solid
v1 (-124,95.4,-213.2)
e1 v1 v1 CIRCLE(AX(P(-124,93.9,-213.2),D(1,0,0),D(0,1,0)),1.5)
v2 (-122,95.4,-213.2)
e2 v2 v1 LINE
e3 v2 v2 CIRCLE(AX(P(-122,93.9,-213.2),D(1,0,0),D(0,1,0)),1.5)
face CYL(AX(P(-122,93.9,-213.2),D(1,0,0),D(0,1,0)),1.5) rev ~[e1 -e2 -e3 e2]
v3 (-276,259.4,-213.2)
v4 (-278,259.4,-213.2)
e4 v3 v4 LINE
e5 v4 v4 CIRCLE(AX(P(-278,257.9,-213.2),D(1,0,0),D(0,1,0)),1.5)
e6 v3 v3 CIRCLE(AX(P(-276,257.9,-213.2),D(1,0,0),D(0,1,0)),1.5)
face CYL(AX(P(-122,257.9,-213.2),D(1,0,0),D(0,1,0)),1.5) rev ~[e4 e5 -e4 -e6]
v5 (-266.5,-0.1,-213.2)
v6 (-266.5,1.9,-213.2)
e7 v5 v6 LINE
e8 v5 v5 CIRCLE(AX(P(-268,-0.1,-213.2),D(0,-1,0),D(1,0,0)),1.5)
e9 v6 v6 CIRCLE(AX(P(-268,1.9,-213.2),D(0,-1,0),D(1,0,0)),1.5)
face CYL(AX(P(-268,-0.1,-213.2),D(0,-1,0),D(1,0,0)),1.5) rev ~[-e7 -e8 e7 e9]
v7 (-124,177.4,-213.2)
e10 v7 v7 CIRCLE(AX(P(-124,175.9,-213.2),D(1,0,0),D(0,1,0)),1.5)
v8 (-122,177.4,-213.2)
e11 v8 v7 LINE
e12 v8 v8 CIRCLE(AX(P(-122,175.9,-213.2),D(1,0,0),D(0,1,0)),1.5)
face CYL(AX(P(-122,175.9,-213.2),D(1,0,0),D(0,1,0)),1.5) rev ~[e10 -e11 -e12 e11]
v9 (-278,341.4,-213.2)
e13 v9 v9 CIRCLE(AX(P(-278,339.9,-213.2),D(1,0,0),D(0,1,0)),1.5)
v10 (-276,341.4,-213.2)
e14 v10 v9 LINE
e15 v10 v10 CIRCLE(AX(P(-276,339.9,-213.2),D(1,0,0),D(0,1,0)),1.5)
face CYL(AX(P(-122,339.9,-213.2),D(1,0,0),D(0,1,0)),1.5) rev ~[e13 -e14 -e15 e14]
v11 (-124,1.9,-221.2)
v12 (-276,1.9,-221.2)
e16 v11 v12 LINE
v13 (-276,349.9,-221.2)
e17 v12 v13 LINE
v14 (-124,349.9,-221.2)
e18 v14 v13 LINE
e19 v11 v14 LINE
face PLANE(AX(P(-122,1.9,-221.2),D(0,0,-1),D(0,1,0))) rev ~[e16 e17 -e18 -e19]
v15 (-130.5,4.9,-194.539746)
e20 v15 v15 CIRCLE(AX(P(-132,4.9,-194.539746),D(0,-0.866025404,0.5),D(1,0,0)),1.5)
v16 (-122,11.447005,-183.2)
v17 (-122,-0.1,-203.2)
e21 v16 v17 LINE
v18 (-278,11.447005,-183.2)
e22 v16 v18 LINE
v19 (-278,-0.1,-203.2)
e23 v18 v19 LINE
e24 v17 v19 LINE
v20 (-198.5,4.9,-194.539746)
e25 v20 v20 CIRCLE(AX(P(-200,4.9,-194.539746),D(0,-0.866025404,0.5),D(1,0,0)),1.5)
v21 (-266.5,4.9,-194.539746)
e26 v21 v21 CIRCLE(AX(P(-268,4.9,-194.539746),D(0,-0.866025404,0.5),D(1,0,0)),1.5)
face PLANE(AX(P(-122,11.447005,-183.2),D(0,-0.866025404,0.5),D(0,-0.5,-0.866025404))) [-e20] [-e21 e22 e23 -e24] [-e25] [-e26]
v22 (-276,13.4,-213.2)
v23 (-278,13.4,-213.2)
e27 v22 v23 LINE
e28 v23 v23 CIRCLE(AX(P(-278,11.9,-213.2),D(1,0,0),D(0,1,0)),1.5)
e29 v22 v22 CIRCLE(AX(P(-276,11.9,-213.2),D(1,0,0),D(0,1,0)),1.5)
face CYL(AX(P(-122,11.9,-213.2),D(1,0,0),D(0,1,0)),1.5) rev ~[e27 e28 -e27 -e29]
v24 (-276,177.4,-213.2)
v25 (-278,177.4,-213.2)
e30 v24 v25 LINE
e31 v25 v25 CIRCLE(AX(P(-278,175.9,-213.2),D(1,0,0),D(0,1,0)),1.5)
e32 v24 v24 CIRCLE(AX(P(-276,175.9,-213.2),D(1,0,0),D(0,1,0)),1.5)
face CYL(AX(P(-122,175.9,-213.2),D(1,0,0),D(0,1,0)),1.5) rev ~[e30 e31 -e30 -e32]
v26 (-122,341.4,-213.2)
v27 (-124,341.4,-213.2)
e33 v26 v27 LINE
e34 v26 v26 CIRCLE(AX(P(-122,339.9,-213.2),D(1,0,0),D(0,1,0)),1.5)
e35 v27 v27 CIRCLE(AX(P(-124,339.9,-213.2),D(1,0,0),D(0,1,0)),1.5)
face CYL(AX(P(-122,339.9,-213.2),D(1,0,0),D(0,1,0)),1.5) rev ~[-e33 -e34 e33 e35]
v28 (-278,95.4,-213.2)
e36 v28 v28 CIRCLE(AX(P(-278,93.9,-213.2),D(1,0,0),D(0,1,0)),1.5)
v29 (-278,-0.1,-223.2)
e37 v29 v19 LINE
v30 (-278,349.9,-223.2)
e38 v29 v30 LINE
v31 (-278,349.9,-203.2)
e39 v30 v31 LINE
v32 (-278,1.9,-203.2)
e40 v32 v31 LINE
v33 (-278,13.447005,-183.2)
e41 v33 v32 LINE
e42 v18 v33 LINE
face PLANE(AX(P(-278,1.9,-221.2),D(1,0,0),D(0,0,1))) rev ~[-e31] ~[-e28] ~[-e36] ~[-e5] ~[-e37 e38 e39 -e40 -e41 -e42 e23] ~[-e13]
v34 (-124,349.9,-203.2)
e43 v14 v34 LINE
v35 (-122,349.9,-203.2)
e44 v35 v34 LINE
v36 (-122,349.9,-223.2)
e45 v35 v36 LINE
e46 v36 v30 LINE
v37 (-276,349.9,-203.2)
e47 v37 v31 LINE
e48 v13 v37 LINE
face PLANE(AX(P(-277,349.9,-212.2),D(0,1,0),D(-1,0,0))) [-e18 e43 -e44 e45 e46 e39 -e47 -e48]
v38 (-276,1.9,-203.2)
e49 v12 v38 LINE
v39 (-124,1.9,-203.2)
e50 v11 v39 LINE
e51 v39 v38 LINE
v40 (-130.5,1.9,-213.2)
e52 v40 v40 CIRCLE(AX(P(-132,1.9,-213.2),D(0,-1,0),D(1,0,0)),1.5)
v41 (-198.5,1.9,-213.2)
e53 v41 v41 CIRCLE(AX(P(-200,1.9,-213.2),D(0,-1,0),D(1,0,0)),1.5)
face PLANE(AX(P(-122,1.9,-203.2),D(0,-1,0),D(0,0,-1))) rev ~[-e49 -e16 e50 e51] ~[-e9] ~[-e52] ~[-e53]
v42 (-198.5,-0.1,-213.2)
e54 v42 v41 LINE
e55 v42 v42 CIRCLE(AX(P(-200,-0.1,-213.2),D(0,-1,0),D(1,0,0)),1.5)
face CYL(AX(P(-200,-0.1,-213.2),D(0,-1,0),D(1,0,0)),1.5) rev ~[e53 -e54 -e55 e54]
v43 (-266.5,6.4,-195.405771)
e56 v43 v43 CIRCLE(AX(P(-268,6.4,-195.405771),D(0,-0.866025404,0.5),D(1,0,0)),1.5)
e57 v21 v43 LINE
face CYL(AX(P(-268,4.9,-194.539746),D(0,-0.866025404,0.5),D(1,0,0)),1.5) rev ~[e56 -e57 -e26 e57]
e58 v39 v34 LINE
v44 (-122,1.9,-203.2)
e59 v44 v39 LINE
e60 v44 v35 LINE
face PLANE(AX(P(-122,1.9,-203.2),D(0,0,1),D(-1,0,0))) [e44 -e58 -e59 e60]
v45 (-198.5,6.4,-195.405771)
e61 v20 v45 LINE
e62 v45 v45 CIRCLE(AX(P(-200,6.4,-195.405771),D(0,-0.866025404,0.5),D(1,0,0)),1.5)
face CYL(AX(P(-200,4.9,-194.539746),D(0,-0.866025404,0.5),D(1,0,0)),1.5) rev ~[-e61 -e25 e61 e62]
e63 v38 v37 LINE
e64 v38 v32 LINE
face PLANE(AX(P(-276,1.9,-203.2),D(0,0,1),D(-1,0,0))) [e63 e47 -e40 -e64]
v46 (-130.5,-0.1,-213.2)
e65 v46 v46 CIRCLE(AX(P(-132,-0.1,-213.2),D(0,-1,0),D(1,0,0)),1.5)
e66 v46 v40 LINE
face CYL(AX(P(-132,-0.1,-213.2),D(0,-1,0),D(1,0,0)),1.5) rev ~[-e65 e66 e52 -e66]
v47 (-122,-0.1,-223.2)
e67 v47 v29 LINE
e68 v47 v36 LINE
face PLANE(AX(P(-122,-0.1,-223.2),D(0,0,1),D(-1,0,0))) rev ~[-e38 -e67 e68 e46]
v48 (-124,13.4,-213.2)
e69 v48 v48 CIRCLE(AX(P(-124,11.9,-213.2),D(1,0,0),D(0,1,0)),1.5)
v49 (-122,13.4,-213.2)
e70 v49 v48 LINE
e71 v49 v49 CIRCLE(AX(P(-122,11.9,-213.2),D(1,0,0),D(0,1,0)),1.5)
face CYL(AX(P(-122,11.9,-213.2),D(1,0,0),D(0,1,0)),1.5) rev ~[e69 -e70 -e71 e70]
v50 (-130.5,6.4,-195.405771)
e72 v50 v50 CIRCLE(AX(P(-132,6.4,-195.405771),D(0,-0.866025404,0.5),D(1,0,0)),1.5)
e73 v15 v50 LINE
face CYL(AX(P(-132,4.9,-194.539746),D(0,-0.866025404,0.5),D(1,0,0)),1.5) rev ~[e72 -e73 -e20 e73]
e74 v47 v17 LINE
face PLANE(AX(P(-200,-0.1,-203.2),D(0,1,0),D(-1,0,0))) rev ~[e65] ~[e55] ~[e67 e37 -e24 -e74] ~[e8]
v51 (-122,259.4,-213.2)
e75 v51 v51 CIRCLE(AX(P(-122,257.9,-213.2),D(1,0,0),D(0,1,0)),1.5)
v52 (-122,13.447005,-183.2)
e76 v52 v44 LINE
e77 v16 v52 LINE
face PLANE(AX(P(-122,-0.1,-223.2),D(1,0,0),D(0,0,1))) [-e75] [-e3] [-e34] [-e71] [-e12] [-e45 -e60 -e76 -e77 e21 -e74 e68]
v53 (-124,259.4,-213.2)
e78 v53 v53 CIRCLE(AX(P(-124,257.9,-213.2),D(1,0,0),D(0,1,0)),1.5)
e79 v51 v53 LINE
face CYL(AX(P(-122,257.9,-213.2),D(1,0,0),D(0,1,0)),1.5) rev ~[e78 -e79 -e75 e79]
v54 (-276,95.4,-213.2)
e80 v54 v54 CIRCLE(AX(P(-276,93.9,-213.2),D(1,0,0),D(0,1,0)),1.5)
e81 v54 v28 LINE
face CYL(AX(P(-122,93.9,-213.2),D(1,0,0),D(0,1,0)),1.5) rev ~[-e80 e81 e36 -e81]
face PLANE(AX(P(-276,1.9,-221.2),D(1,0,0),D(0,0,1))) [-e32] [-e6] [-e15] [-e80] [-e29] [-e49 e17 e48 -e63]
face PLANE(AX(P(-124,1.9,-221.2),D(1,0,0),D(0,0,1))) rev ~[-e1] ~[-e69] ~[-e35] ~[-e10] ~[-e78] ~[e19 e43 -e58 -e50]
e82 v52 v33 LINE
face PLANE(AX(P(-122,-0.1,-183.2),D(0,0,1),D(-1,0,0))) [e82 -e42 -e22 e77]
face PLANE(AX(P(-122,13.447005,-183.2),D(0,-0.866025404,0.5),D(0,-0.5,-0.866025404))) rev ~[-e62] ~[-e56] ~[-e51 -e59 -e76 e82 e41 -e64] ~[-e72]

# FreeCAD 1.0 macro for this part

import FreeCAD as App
import Part
import Sketcher
from FreeCAD import Vector
Q = App.Units.Quantity

doc = App.newDocument("Part")
body = doc.addObject("PartDesign::Body", "Body")

sketch1 = doc.addObject("Sketcher::SketchObject", "Sketch")
body.addObject(sketch1)
sketch1.AttachmentSupport = (doc.XZ_Plane, [""])
sketch1.MapMode = "FlatFace"
sketch1.AttachmentOffset = App.Placement(Vector(0, 0, 0.1), App.Rotation())
sketch1.addGeometry([
    Part.LineSegment(Vector(-122, -183, 0), Vector(-122, -223, 0)),
    Part.LineSegment(Vector(-122, -223, 0), Vector(-278, -223, 0)),
    Part.LineSegment(Vector(-278, -223, 0), Vector(-278, -183, 0)),
    Part.LineSegment(Vector(-278, -183, 0), Vector(-122, -183, 0)),
], False)
sketch1.addConstraint([
    Sketcher.Constraint("Coincident", 0, 2, 1, 1),
    Sketcher.Constraint("Coincident", 1, 2, 2, 1),
    Sketcher.Constraint("Coincident", 2, 2, 3, 1),
    Sketcher.Constraint("Coincident", 3, 2, 0, 1),
    Sketcher.Constraint("Vertical", 0),
    Sketcher.Constraint("Horizontal", 1),
    Sketcher.Constraint("Vertical", 2),
    Sketcher.Constraint("Horizontal", 3),
    Sketcher.Constraint("DistanceX", 1, 2, 1, 1, Q("156 mm")),
    Sketcher.Constraint("DistanceY", 0, 2, 0, 1, Q("40 mm")),
    Sketcher.Constraint("DistanceX", 0, 2, -1, 1, Q("122 mm")),
    Sketcher.Constraint("DistanceY", 0, 2, -1, 1, Q("223.2 mm")),
])
pad1 = doc.addObject("PartDesign::Pad", "Pad")
body.addObject(pad1)
pad1.Profile = sketch1
pad1.Length = 350
pad1.Reversed = True

sketch2 = doc.addObject("Sketcher::SketchObject", "Sketch001")
body.addObject(sketch2)
sketch2.AttachmentSupport = (doc.YZ_Plane, [""])
sketch2.MapMode = "FlatFace"
sketch2.AttachmentOffset = App.Placement(Vector(0, 0, -122), App.Rotation())
sketch2.addGeometry([
    Part.LineSegment(Vector(2, -203, 0), Vector(13, -183, 0)),
    Part.LineSegment(Vector(13, -183, 0), Vector(350, -183, 0)),
    Part.LineSegment(Vector(350, -183, 0), Vector(350, -221, 0)),
    Part.LineSegment(Vector(350, -221, 0), Vector(2, -221, 0)),
    Part.LineSegment(Vector(2, -221, 0), Vector(2, -203, 0)),
    Part.LineSegment(Vector(0, -183, 0), Vector(11, -183, 0)),
    Part.LineSegment(Vector(11, -183, 0), Vector(0, -203, 0)),
    Part.LineSegment(Vector(0, -203, 0), Vector(0, -183, 0)),
], False)
sketch2.addConstraint([
    Sketcher.Constraint("Coincident", 0, 2, 1, 1),
    Sketcher.Constraint("Coincident", 1, 2, 2, 1),
    Sketcher.Constraint("Coincident", 2, 2, 3, 1),
    Sketcher.Constraint("Coincident", 3, 2, 4, 1),
    Sketcher.Constraint("Coincident", 4, 2, 0, 1),
    Sketcher.Constraint("Coincident", 5, 2, 6, 1),
    Sketcher.Constraint("Coincident", 6, 2, 7, 1),
    Sketcher.Constraint("Coincident", 7, 2, 5, 1),
    Sketcher.Constraint("Horizontal", 1),
    Sketcher.Constraint("Vertical", 2),
    Sketcher.Constraint("Horizontal", 3),
    Sketcher.Constraint("Vertical", 4),
    Sketcher.Constraint("Horizontal", 5),
    Sketcher.Constraint("Vertical", 7),
    Sketcher.Constraint("Parallel", 0, 6),
    Sketcher.Constraint("Horizontal", 1, 2, 5, 2),
    Sketcher.Constraint("Horizontal", 4, 2, 6, 2),
    Sketcher.Constraint("DistanceX", 3, 2, 3, 1, Q("348 mm")),
    Sketcher.Constraint("DistanceY", 2, 2, 2, 1, Q("38 mm")),
    Sketcher.Constraint("DistanceY", 4, 1, 4, 2, Q("18 mm")),
    Sketcher.Constraint("Angle", 0, Q("60 deg")),
    Sketcher.Constraint("DistanceX", 5, 2, 0, 2, Q("2 mm")),
    Sketcher.Constraint("DistanceY", 0, 2, -1, 1, Q("183.2 mm")),
    Sketcher.Constraint("DistanceX", -1, 1, 1, 2, Q("349.9 mm")),
])
pocket1 = doc.addObject("PartDesign::Pocket", "Pocket")
body.addObject(pocket1)
pocket1.Profile = sketch2
pocket1.Type = "ThroughAll"

sketch3 = doc.addObject("Sketcher::SketchObject", "Sketch002")
body.addObject(sketch3)
sketch3.Placement = App.Placement(Vector(0, 87.913181, -50.756699), App.Rotation(Vector(1, 0, 0), Vector(0, 0.5, 0.866025404), Vector(0, -0.866025404, 0.5), "ZXY"))
sketch3.addGeometry([
    Part.Circle(Vector(-200, -166, 0), Vector(0, 0, 1), 1.5),
    Part.Circle(Vector(-268, -166, 0), Vector(0, 0, 1), 1.5),
    Part.Circle(Vector(-132, -166, 0), Vector(0, 0, 1), 1.5),
], False)
sketch3.addConstraint([
    Sketcher.Constraint("Equal", 0, 1),
    Sketcher.Constraint("Equal", 1, 2),
    Sketcher.Constraint("Horizontal", 0, 3, 1, 3),
    Sketcher.Constraint("Horizontal", 1, 3, 2, 3),
    Sketcher.Constraint("Diameter", 0, Q("3 mm")),
    Sketcher.Constraint("DistanceX", 0, 3, -1, 1, Q("200 mm")),
    Sketcher.Constraint("DistanceX", 1, 3, -1, 1, Q("268 mm")),
    Sketcher.Constraint("DistanceX", 2, 3, -1, 1, Q("132 mm")),
    Sketcher.Constraint("DistanceY", 0, 3, -1, 1, Q("166.026362 mm")),
])
pocket2 = doc.addObject("PartDesign::Pocket", "Pocket001")
body.addObject(pocket2)
pocket2.Profile = sketch3
pocket2.Length = 5

sketch4 = doc.addObject("Sketcher::SketchObject", "Sketch003")
body.addObject(sketch4)
sketch4.AttachmentSupport = (doc.XZ_Plane, [""])
sketch4.MapMode = "FlatFace"
sketch4.AttachmentOffset = App.Placement(Vector(0, 0, 0.1), App.Rotation())
sketch4.addGeometry([
    Part.Circle(Vector(-200, -213.2, 0), Vector(0, 0, 1), 1.5),
    Part.Circle(Vector(-268, -213.2, 0), Vector(0, 0, 1), 1.5),
    Part.Circle(Vector(-132, -213.2, 0), Vector(0, 0, 1), 1.5),
], False)
sketch4.addConstraint([
    Sketcher.Constraint("Equal", 0, 1),
    Sketcher.Constraint("Equal", 1, 2),
    Sketcher.Constraint("Horizontal", 0, 3, 1, 3),
    Sketcher.Constraint("Horizontal", 1, 3, 2, 3),
    Sketcher.Constraint("Diameter", 0, Q("3 mm")),
    Sketcher.Constraint("DistanceX", 0, 3, -1, 1, Q("200 mm")),
    Sketcher.Constraint("DistanceX", 1, 3, -1, 1, Q("268 mm")),
    Sketcher.Constraint("DistanceX", 2, 3, -1, 1, Q("132 mm")),
    Sketcher.Constraint("DistanceY", 0, 3, -1, 1, Q("213.2 mm")),
])
pocket3 = doc.addObject("PartDesign::Pocket", "Pocket002")
body.addObject(pocket3)
pocket3.Profile = sketch4
pocket3.Length = 5

sketch5 = doc.addObject("Sketcher::SketchObject", "Sketch004")
body.addObject(sketch5)
sketch5.AttachmentSupport = (doc.XZ_Plane, [""])
sketch5.MapMode = "FlatFace"
sketch5.AttachmentOffset = App.Placement(Vector(0, 0, -1.9), App.Rotation())
sketch5.addGeometry([
    Part.LineSegment(Vector(-276, -203.2, 0), Vector(-276, -221.2, 0)),
    Part.LineSegment(Vector(-276, -221.2, 0), Vector(-278, -221.2, 0)),
    Part.LineSegment(Vector(-278, -221.2, 0), Vector(-278, -203.2, 0)),
    Part.LineSegment(Vector(-278, -203.2, 0), Vector(-276, -203.2, 0)),
    Part.LineSegment(Vector(-122, -203.2, 0), Vector(-122, -221.2, 0)),
    Part.LineSegment(Vector(-122, -221.2, 0), Vector(-124, -221.2, 0)),
    Part.LineSegment(Vector(-124, -221.2, 0), Vector(-124, -203.2, 0)),
    Part.LineSegment(Vector(-124, -203.2, 0), Vector(-122, -203.2, 0)),
], False)
sketch5.addConstraint([
    Sketcher.Constraint("Coincident", 0, 2, 1, 1),
    Sketcher.Constraint("Coincident", 1, 2, 2, 1),
    Sketcher.Constraint("Coincident", 2, 2, 3, 1),
    Sketcher.Constraint("Coincident", 3, 2, 0, 1),
    Sketcher.Constraint("Coincident", 4, 2, 5, 1),
    Sketcher.Constraint("Coincident", 5, 2, 6, 1),
    Sketcher.Constraint("Coincident", 6, 2, 7, 1),
    Sketcher.Constraint("Coincident", 7, 2, 4, 1),
    Sketcher.Constraint("Vertical", 0),
    Sketcher.Constraint("Horizontal", 1),
    Sketcher.Constraint("Vertical", 2),
    Sketcher.Constraint("Horizontal", 3),
    Sketcher.Constraint("Vertical", 4),
    Sketcher.Constraint("Horizontal", 5),
    Sketcher.Constraint("Vertical", 6),
    Sketcher.Constraint("Horizontal", 7),
    Sketcher.Constraint("Horizontal", 1, 2, 4, 2),
    Sketcher.Constraint("Horizontal", 3, 2, 6, 2),
    Sketcher.Constraint("Equal", 3, 5),
    Sketcher.Constraint("DistanceX", 1, 2, 1, 1, Q("2 mm")),
    Sketcher.Constraint("DistanceY", 0, 2, 0, 1, Q("18 mm")),
    Sketcher.Constraint("DistanceX", 0, 2, -1, 1, Q("276 mm")),
    Sketcher.Constraint("DistanceX", 4, 2, -1, 1, Q("122 mm")),
    Sketcher.Constraint("DistanceY", 0, 2, -1, 1, Q("221.2 mm")),
])
pad2 = doc.addObject("PartDesign::Pad", "Pad001")
body.addObject(pad2)
pad2.Profile = sketch5
pad2.Length = 348
pad2.Reversed = True

sketch6 = doc.addObject("Sketcher::SketchObject", "Sketch005")
body.addObject(sketch6)
sketch6.AttachmentSupport = (doc.YZ_Plane, [""])
sketch6.MapMode = "FlatFace"
sketch6.AttachmentOffset = App.Placement(Vector(0, 0, -122), App.Rotation())
sketch6.addGeometry([
    Part.Circle(Vector(257.9, -213.2, 0), Vector(0, 0, 1), 1.5),
    Part.Circle(Vector(339.9, -213.2, 0), Vector(0, 0, 1), 1.5),
    Part.Circle(Vector(175.9, -213.2, 0), Vector(0, 0, 1), 1.5),
    Part.Circle(Vector(93.9, -213.2, 0), Vector(0, 0, 1), 1.5),
    Part.Circle(Vector(11.9, -213.2, 0), Vector(0, 0, 1), 1.5),
], False)
sketch6.addConstraint([
    Sketcher.Constraint("Equal", 0, 1),
    Sketcher.Constraint("Equal", 1, 2),
    Sketcher.Constraint("Equal", 2, 3),
    Sketcher.Constraint("Equal", 3, 4),
    Sketcher.Constraint("Horizontal", 0, 3, 1, 3),
    Sketcher.Constraint("Horizontal", 1, 3, 2, 3),
    Sketcher.Constraint("Horizontal", 2, 3, 3, 3),
    Sketcher.Constraint("Horizontal", 3, 3, 4, 3),
    Sketcher.Constraint("Diameter", 0, Q("3 mm")),
    Sketcher.Constraint("DistanceX", 0, 3, 1, 3, Q("82 mm")),
    Sketcher.Constraint("DistanceX", 2, 3, 0, 3, Q("82 mm")),
    Sketcher.Constraint("DistanceX", 3, 3, 2, 3, Q("82 mm")),
    Sketcher.Constraint("DistanceX", 4, 3, 3, 3, Q("82 mm")),
    Sketcher.Constraint("DistanceX", -1, 1, 0, 3, Q("257.9 mm")),
    Sketcher.Constraint("DistanceY", 0, 3, -1, 1, Q("213.2 mm")),
])
pocket4 = doc.addObject("PartDesign::Pocket", "Pocket003")
body.addObject(pocket4)
pocket4.Profile = sketch6
pocket4.Type = "ThroughAll"

doc.recompute()
